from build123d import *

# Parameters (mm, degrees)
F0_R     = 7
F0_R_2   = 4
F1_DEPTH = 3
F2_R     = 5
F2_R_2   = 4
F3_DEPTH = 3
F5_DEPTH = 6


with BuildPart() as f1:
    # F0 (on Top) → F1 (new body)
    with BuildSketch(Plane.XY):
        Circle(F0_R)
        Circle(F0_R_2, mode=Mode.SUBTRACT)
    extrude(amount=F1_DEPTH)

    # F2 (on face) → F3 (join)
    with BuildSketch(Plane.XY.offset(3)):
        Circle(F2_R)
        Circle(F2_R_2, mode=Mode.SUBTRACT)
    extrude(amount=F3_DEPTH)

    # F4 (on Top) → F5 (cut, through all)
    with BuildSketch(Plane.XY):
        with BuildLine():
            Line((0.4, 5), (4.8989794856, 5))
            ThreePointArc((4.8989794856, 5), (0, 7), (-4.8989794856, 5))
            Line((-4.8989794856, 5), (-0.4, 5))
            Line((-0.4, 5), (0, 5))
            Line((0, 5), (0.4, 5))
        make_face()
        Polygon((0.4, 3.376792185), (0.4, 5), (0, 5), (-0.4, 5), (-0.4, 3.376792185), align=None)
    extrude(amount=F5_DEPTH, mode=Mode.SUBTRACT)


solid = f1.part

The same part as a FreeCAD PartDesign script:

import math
import FreeCAD as App
import Part
import Sketcher

V = App.Vector

doc = App.newDocument("Part")
body = doc.addObject("PartDesign::Body", "Body")

sketch1 = body.newObject("Sketcher::SketchObject", "Sketch")
sketch1.AttachmentSupport = (doc.getObject("XY_Plane"), [""])
sketch1.MapMode = "FlatFace"
sketch1.addGeometry([
    Part.Circle(V(0, 0, 0), V(0, 0, 1), 7),
    Part.Circle(V(0, 0, 0), V(0, 0, 1), 4),
], False)
sketch1.addConstraint([
    Sketcher.Constraint("Coincident", 0, 3, -1, 1),
    Sketcher.Constraint("Coincident", 1, 3, -1, 1),
    Sketcher.Constraint("Diameter", 0, 14.0),
    Sketcher.Constraint("Diameter", 1, 8.0),
])
pad1 = body.newObject("PartDesign::Pad", "Pad")
pad1.Profile = sketch1
pad1.Length = 3

sketch2 = body.newObject("Sketcher::SketchObject", "Sketch001")
sketch2.AttachmentSupport = (doc.getObject("XY_Plane"), [""])
sketch2.MapMode = "FlatFace"
sketch2.AttachmentOffset = App.Placement(V(0, 0, 3), App.Rotation())
sketch2.addGeometry([
    Part.Circle(V(0, 0, 0), V(0, 0, 1), 5),
    Part.Circle(V(0, 0, 0), V(0, 0, 1), 4),
], False)
sketch2.addConstraint([
    Sketcher.Constraint("Coincident", 0, 3, -1, 1),
    Sketcher.Constraint("Coincident", 1, 3, -1, 1),
    Sketcher.Constraint("Diameter", 0, 10.0),
    Sketcher.Constraint("Diameter", 1, 8.0),
])
pad2 = body.newObject("PartDesign::Pad", "Pad001")
pad2.Profile = sketch2
pad2.Length = 3

sketch3 = body.newObject("Sketcher::SketchObject", "Sketch002")
sketch3.AttachmentSupport = (doc.getObject("XY_Plane"), [""])
sketch3.MapMode = "FlatFace"
sketch3.addGeometry([
    Part.ArcOfCircle(Part.Circle(V(0, 0, 0), V(0, 0, 1), 7), math.radians(45.584691), math.radians(134.415309)),
    Part.LineSegment(V(-4.898979, 5, 0), V(-0.4, 5, 0)),
    Part.LineSegment(V(-0.4, 5, 0), V(-0.4, 3.376792, 0)),
    Part.LineSegment(V(-0.4, 3.376792, 0), V(0.4, 3.376792, 0)),
    Part.LineSegment(V(0.4, 3.376792, 0), V(0.4, 5, 0)),
    Part.LineSegment(V(0.4, 5, 0), V(4.898979, 5, 0)),
], False)
sketch3.addConstraint([
    Sketcher.Constraint("Coincident", 0, 2, 1, 1),
    Sketcher.Constraint("Coincident", 1, 2, 2, 1),
    Sketcher.Constraint("Coincident", 2, 2, 3, 1),
    Sketcher.Constraint("Coincident", 3, 2, 4, 1),
    Sketcher.Constraint("Coincident", 4, 2, 5, 1),
    Sketcher.Constraint("Coincident", 5, 2, 0, 1),
    Sketcher.Constraint("Horizontal", 1),
    Sketcher.Constraint("Vertical", 2),
    Sketcher.Constraint("Horizontal", 3),
    Sketcher.Constraint("Vertical", 4),
    Sketcher.Constraint("Horizontal", 5),
    Sketcher.Constraint("Coincident", 0, 3, -1, 1),
    Sketcher.Constraint("Symmetric", 1, 2, 4, 2, -2),
    Sketcher.Constraint("Radius", 0, 7.0),
    Sketcher.Constraint("DistanceX", 3, 1, 3, 2, 0.8),
    Sketcher.Constraint("DistanceY", -1, 1, 0, 2, 5.0),
    Sketcher.Constraint("DistanceY", 2, 2, 2, 1, 1.623208),
])
pocket1 = body.newObject("PartDesign::Pocket", "Pocket")
pocket1.Profile = sketch3
pocket1.Type = "ThroughAll"
pocket1.Reversed = True

doc.recompute()
